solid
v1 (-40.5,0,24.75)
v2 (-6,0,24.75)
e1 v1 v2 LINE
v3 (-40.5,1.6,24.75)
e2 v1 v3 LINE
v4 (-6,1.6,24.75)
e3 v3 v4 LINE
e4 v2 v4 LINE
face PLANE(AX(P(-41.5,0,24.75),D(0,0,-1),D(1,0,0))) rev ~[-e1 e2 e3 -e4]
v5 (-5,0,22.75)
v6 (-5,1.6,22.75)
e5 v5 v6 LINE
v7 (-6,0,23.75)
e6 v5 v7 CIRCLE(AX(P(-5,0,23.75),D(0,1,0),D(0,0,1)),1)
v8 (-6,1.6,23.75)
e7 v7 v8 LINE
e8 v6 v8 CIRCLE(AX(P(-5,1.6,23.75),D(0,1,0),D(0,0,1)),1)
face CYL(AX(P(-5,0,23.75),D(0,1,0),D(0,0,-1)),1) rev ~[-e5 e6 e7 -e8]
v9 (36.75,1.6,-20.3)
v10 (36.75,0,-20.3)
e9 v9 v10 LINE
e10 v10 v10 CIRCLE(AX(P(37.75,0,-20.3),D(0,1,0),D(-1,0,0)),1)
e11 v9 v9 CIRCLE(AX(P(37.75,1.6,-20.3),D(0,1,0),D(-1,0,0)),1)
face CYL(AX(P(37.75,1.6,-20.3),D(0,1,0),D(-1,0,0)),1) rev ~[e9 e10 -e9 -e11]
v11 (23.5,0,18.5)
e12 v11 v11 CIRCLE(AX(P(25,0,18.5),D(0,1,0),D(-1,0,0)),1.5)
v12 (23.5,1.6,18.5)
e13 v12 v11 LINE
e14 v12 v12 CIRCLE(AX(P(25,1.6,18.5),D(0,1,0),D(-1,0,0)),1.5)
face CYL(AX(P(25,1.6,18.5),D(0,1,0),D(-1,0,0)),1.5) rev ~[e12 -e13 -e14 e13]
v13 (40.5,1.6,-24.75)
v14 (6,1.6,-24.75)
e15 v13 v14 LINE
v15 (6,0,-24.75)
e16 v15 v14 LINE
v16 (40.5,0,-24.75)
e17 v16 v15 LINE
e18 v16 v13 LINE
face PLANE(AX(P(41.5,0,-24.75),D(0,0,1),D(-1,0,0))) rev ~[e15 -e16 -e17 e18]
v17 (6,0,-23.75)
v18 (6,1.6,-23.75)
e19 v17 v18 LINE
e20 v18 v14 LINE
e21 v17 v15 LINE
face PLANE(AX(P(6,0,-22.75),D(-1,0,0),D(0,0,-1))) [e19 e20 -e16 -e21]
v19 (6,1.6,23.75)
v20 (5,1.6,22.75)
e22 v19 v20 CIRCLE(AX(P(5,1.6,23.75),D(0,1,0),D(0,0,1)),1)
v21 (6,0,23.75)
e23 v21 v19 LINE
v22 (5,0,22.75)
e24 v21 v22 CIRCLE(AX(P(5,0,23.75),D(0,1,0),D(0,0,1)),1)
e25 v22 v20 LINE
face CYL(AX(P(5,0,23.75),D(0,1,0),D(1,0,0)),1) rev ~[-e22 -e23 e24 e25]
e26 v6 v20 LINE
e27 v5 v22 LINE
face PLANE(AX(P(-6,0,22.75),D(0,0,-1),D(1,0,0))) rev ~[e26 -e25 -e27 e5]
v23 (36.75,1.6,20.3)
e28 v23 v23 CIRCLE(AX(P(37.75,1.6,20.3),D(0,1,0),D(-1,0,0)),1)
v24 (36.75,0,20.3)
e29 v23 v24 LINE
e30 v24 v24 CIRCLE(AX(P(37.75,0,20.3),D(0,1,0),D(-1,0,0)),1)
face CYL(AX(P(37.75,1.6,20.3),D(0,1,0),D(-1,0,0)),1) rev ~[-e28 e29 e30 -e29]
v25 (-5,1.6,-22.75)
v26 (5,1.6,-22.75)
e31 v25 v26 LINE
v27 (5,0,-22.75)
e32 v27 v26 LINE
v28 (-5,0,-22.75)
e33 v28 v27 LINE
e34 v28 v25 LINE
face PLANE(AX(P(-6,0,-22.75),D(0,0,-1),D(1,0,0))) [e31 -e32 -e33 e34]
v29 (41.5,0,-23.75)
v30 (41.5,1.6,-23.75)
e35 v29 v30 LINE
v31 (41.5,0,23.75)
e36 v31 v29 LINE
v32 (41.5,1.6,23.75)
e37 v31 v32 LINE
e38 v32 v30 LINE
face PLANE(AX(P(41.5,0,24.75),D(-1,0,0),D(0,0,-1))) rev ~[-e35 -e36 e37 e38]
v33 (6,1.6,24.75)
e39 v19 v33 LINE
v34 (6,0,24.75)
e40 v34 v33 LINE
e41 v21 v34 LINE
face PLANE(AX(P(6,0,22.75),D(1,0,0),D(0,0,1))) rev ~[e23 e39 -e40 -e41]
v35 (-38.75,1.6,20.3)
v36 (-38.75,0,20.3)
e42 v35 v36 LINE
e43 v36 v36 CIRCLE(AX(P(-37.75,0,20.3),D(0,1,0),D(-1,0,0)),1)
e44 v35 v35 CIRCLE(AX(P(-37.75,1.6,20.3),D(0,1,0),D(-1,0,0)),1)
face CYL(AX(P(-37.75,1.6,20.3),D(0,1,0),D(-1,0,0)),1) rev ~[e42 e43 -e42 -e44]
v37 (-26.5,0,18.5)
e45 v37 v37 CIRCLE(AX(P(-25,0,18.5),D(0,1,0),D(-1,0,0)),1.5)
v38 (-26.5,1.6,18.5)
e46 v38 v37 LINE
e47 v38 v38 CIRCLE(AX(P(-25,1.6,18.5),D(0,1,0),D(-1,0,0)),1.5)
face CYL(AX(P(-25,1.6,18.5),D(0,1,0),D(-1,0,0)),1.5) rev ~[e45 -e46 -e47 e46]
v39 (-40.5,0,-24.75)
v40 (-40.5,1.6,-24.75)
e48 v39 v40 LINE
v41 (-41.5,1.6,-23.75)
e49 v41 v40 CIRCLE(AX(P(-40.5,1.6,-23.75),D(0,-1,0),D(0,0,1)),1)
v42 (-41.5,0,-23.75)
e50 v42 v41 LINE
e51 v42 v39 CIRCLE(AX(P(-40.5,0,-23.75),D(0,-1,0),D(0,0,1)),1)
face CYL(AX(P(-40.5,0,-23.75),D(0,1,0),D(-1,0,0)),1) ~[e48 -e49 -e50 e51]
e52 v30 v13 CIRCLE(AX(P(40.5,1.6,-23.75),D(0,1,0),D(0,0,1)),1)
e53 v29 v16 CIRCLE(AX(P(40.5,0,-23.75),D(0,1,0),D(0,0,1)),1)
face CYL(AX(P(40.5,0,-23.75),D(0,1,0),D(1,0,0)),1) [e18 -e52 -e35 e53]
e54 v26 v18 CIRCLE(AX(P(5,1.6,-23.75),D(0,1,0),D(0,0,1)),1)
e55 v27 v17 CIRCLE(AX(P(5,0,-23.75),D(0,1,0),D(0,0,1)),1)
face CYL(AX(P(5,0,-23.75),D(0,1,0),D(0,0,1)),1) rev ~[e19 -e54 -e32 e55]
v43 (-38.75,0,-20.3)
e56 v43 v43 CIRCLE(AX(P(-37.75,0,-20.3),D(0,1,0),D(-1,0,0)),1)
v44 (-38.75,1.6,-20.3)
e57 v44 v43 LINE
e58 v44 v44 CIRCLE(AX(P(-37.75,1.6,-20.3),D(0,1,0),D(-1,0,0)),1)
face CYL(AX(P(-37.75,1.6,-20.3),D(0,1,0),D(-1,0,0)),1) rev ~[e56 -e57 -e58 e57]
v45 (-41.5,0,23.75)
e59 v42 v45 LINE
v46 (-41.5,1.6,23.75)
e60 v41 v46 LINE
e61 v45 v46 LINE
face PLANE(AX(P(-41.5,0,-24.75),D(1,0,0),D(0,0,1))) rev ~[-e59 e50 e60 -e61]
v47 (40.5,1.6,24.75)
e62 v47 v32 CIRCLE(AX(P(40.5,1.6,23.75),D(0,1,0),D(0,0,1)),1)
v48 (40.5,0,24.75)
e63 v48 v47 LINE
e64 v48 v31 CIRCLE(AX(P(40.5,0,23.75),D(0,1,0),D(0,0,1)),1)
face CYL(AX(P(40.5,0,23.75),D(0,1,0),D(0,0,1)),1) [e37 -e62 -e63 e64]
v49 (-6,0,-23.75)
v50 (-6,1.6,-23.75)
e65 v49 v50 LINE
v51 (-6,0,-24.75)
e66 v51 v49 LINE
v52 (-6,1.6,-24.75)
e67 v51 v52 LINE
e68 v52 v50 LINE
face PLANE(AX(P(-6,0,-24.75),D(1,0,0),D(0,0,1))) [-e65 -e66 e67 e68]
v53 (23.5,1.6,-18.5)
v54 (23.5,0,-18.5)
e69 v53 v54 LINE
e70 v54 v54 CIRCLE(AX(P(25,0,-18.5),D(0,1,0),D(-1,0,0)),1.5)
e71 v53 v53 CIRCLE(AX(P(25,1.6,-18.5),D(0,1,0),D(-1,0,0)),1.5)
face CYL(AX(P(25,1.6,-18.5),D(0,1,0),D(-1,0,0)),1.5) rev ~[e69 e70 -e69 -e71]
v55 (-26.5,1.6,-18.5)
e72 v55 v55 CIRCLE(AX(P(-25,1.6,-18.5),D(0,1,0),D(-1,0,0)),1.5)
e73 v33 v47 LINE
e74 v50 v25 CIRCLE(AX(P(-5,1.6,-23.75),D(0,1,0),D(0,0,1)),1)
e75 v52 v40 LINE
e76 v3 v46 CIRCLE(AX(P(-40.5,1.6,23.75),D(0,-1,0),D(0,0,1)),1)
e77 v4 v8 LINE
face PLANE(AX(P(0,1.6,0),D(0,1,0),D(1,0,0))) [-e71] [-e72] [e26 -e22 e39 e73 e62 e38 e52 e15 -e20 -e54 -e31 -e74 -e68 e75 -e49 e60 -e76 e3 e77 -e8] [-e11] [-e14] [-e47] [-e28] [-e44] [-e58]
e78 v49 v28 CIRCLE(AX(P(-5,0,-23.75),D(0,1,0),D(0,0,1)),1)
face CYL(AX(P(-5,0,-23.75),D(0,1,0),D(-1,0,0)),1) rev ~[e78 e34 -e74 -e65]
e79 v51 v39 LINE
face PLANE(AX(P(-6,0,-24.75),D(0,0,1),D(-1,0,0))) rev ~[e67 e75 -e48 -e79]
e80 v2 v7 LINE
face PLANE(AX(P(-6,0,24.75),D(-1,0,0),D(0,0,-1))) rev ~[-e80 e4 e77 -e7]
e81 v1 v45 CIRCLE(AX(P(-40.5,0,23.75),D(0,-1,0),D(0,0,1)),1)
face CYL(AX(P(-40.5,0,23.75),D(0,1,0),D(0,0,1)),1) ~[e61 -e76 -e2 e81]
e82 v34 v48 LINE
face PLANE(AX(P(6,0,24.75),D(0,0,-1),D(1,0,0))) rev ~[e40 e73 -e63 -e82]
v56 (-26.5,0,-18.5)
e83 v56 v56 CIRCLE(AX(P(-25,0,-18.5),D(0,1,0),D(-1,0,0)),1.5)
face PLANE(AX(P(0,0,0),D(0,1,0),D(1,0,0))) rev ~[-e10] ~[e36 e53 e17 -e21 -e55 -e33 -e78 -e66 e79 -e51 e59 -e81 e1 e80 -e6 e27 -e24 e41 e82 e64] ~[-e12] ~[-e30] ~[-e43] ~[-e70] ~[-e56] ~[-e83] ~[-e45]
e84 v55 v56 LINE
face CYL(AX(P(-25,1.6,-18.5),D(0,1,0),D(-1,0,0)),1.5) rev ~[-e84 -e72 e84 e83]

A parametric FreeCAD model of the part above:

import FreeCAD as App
import Part
import Sketcher
Q = App.Units.Quantity


def edges_at(feature, points):
    """Names of the edges that pass closest to the given points."""
    edges = feature.Shape.Edges
    near = lambda p: min(range(len(edges)), key=lambda i: edges[i].distToShape(Part.Vertex(*p))[0])
    return sorted({f"Edge{near(p) + 1}" for p in points})


def add_polygon(sketch, points):
    """Adds a closed chain of lines whose ends are joined by coincident constraints."""
    first, n = sketch.GeometryCount, len(points)
    for a, b in zip(points, points[1:] + points[:1]):
        sketch.addGeometry(Part.LineSegment(App.Vector(*a, 0), App.Vector(*b, 0)), False)
    for i in range(n):
        sketch.addConstraint(Sketcher.Constraint("Coincident", first + i, 2, first + (i + 1) % n, 1))

doc = App.newDocument("Part")
body = doc.addObject("PartDesign::Body", "Body")

sketch1 = doc.addObject("Sketcher::SketchObject", "Sketch")
body.addObject(sketch1)
sketch1.AttachmentSupport = (doc.XZ_Plane, [""])
sketch1.MapMode = "FlatFace"
add_polygon(sketch1, [(41.5, 24.8), (41.5, -24.8), (6, -24.8), (6, -22.8), (-6, -22.8), (-6, -24.8), (-41.5, -24.8), (-41.5, 24.8), (-6, 24.8), (-6, 22.8), (6, 22.8), (6, 24.8)])
sketch1.addConstraint(Sketcher.Constraint("Vertical", 0))
sketch1.addConstraint(Sketcher.Constraint("Horizontal", 1))
sketch1.addConstraint(Sketcher.Constraint("Vertical", 2))
sketch1.addConstraint(Sketcher.Constraint("Horizontal", 3))
sketch1.addConstraint(Sketcher.Constraint("Vertical", 4))
sketch1.addConstraint(Sketcher.Constraint("Horizontal", 5))
sketch1.addConstraint(Sketcher.Constraint("Vertical", 6))
sketch1.addConstraint(Sketcher.Constraint("Horizontal", 7))
sketch1.addConstraint(Sketcher.Constraint("Vertical", 8))
sketch1.addConstraint(Sketcher.Constraint("Horizontal", 9))
sketch1.addConstraint(Sketcher.Constraint("Vertical", 10))
sketch1.addConstraint(Sketcher.Constraint("Horizontal", 11))
sketch1.addConstraint(Sketcher.Constraint("Symmetric", 0, 2, 6, 2, -1, 1))
sketch1.addConstraint(Sketcher.Constraint("Symmetric", 2, 2, 8, 2, -1, 1))
sketch1.addConstraint(Sketcher.Constraint("Symmetric", 4, 2, 10, 2, -1, 1))
sketch1.addConstraint(Sketcher.Constraint("Symmetric", 1, 2, 4, 2, -2))
sketch1.addConstraint(Sketcher.Constraint("DistanceX", 3, 2, 3, 1, Q("12 mm")))
sketch1.addConstraint(Sketcher.Constraint("DistanceY", 0, 2, 0, 1, Q("49.5 mm")))
sketch1.addConstraint(Sketcher.Constraint("DistanceX", 5, 2, 0, 2, Q("83 mm")))
sketch1.addConstraint(Sketcher.Constraint("DistanceY", 2, 1, 2, 2, Q("2 mm")))
pad1 = doc.addObject("PartDesign::Pad", "Pad")
body.addObject(pad1)
pad1.Profile = sketch1
pad1.Length = 1.6
pad1.Reversed = True
doc.recompute()

fillet = doc.addObject("PartDesign::Fillet", "Fillet")
body.addObject(fillet)
fillet.Base = (pad1, edges_at(pad1, [
    (6, 0.8, 22.75),
    (-6, 0.8, 22.75),
    (6, 0.8, -22.75),
    (-6, 0.8, -22.75),
]))
fillet.Radius = 1
doc.recompute()

fillet2 = doc.addObject("PartDesign::Fillet", "Fillet001")
body.addObject(fillet2)
fillet2.Base = (fillet, edges_at(fillet, [
    (-41.5, 0.8, -24.75),
    (-41.5, 0.8, 24.75),
    (41.5, 0.8, 24.75),
    (41.5, 0.8, -24.75),
]))
fillet2.Radius = 1

sketch2 = doc.addObject("Sketcher::SketchObject", "Sketch001")
body.addObject(sketch2)
sketch2.AttachmentSupport = (doc.XZ_Plane, [""])
sketch2.MapMode = "FlatFace"
sketch2.AttachmentOffset = App.Placement(App.Vector(0, 0, -1.6), App.Rotation())
sketch2.addGeometry(Part.Circle(App.Vector(-25, 18.5, 0), App.Vector(0, 0, 1), 1.5), False)
sketch2.addGeometry(Part.Circle(App.Vector(-25, -18.5, 0), App.Vector(0, 0, 1), 1.5), False)
sketch2.addGeometry(Part.Circle(App.Vector(25, -18.5, 0), App.Vector(0, 0, 1), 1.5), False)
sketch2.addGeometry(Part.Circle(App.Vector(25, 18.5, 0), App.Vector(0, 0, 1), 1.5), False)
sketch2.addConstraint(Sketcher.Constraint("Equal", 0, 1))
sketch2.addConstraint(Sketcher.Constraint("Equal", 1, 2))
sketch2.addConstraint(Sketcher.Constraint("Equal", 2, 3))
sketch2.addConstraint(Sketcher.Constraint("Symmetric", 0, 3, 2, 3, -1, 1))
sketch2.addConstraint(Sketcher.Constraint("Symmetric", 1, 3, 3, 3, -1, 1))
sketch2.addConstraint(Sketcher.Constraint("Symmetric", 1, 3, 2, 3, -2))
sketch2.addConstraint(Sketcher.Constraint("Diameter", 0, Q("3 mm")))
sketch2.addConstraint(Sketcher.Constraint("DistanceY", 1, 3, 0, 3, Q("37 mm")))
sketch2.addConstraint(Sketcher.Constraint("DistanceX", 1, 3, 2, 3, Q("50 mm")))
pocket1 = doc.addObject("PartDesign::Pocket", "Pocket")
body.addObject(pocket1)
pocket1.Profile = sketch2
pocket1.Length = 6
pocket1.Reversed = True

sketch3 = doc.addObject("Sketcher::SketchObject", "Sketch002")
body.addObject(sketch3)
sketch3.AttachmentSupport = (doc.XZ_Plane, [""])
sketch3.MapMode = "FlatFace"
sketch3.AttachmentOffset = App.Placement(App.Vector(0, 0, -1.6), App.Rotation())
sketch3.addGeometry(Part.Circle(App.Vector(-37.8, 20.3, 0), App.Vector(0, 0, 1), 1), False)
sketch3.addGeometry(Part.Circle(App.Vector(-37.8, -20.3, 0), App.Vector(0, 0, 1), 1), False)
sketch3.addGeometry(Part.Circle(App.Vector(37.8, 20.3, 0), App.Vector(0, 0, 1), 1), False)
sketch3.addGeometry(Part.Circle(App.Vector(37.8, -20.3, 0), App.Vector(0, 0, 1), 1), False)
sketch3.addConstraint(Sketcher.Constraint("Equal", 0, 1))
sketch3.addConstraint(Sketcher.Constraint("Equal", 1, 2))
sketch3.addConstraint(Sketcher.Constraint("Equal", 2, 3))
sketch3.addConstraint(Sketcher.Constraint("Symmetric", 1, 3, 2, 3, -1, 1))
sketch3.addConstraint(Sketcher.Constraint("Symmetric", 0, 3, 3, 3, -1, 1))
sketch3.addConstraint(Sketcher.Constraint("Symmetric", 0, 3, 2, 3, -2))
sketch3.addConstraint(Sketcher.Constraint("Diameter", 0, Q("2 mm")))
sketch3.addConstraint(Sketcher.Constraint("DistanceY", 1, 3, 0, 3, Q("40.6 mm")))
sketch3.addConstraint(Sketcher.Constraint("DistanceX", 0, 3, 2, 3, Q("75.5 mm")))
pocket2 = doc.addObject("PartDesign::Pocket", "Pocket001")
body.addObject(pocket2)
pocket2.Profile = sketch3
pocket2.Length = 2
pocket2.Reversed = True

doc.recompute()
